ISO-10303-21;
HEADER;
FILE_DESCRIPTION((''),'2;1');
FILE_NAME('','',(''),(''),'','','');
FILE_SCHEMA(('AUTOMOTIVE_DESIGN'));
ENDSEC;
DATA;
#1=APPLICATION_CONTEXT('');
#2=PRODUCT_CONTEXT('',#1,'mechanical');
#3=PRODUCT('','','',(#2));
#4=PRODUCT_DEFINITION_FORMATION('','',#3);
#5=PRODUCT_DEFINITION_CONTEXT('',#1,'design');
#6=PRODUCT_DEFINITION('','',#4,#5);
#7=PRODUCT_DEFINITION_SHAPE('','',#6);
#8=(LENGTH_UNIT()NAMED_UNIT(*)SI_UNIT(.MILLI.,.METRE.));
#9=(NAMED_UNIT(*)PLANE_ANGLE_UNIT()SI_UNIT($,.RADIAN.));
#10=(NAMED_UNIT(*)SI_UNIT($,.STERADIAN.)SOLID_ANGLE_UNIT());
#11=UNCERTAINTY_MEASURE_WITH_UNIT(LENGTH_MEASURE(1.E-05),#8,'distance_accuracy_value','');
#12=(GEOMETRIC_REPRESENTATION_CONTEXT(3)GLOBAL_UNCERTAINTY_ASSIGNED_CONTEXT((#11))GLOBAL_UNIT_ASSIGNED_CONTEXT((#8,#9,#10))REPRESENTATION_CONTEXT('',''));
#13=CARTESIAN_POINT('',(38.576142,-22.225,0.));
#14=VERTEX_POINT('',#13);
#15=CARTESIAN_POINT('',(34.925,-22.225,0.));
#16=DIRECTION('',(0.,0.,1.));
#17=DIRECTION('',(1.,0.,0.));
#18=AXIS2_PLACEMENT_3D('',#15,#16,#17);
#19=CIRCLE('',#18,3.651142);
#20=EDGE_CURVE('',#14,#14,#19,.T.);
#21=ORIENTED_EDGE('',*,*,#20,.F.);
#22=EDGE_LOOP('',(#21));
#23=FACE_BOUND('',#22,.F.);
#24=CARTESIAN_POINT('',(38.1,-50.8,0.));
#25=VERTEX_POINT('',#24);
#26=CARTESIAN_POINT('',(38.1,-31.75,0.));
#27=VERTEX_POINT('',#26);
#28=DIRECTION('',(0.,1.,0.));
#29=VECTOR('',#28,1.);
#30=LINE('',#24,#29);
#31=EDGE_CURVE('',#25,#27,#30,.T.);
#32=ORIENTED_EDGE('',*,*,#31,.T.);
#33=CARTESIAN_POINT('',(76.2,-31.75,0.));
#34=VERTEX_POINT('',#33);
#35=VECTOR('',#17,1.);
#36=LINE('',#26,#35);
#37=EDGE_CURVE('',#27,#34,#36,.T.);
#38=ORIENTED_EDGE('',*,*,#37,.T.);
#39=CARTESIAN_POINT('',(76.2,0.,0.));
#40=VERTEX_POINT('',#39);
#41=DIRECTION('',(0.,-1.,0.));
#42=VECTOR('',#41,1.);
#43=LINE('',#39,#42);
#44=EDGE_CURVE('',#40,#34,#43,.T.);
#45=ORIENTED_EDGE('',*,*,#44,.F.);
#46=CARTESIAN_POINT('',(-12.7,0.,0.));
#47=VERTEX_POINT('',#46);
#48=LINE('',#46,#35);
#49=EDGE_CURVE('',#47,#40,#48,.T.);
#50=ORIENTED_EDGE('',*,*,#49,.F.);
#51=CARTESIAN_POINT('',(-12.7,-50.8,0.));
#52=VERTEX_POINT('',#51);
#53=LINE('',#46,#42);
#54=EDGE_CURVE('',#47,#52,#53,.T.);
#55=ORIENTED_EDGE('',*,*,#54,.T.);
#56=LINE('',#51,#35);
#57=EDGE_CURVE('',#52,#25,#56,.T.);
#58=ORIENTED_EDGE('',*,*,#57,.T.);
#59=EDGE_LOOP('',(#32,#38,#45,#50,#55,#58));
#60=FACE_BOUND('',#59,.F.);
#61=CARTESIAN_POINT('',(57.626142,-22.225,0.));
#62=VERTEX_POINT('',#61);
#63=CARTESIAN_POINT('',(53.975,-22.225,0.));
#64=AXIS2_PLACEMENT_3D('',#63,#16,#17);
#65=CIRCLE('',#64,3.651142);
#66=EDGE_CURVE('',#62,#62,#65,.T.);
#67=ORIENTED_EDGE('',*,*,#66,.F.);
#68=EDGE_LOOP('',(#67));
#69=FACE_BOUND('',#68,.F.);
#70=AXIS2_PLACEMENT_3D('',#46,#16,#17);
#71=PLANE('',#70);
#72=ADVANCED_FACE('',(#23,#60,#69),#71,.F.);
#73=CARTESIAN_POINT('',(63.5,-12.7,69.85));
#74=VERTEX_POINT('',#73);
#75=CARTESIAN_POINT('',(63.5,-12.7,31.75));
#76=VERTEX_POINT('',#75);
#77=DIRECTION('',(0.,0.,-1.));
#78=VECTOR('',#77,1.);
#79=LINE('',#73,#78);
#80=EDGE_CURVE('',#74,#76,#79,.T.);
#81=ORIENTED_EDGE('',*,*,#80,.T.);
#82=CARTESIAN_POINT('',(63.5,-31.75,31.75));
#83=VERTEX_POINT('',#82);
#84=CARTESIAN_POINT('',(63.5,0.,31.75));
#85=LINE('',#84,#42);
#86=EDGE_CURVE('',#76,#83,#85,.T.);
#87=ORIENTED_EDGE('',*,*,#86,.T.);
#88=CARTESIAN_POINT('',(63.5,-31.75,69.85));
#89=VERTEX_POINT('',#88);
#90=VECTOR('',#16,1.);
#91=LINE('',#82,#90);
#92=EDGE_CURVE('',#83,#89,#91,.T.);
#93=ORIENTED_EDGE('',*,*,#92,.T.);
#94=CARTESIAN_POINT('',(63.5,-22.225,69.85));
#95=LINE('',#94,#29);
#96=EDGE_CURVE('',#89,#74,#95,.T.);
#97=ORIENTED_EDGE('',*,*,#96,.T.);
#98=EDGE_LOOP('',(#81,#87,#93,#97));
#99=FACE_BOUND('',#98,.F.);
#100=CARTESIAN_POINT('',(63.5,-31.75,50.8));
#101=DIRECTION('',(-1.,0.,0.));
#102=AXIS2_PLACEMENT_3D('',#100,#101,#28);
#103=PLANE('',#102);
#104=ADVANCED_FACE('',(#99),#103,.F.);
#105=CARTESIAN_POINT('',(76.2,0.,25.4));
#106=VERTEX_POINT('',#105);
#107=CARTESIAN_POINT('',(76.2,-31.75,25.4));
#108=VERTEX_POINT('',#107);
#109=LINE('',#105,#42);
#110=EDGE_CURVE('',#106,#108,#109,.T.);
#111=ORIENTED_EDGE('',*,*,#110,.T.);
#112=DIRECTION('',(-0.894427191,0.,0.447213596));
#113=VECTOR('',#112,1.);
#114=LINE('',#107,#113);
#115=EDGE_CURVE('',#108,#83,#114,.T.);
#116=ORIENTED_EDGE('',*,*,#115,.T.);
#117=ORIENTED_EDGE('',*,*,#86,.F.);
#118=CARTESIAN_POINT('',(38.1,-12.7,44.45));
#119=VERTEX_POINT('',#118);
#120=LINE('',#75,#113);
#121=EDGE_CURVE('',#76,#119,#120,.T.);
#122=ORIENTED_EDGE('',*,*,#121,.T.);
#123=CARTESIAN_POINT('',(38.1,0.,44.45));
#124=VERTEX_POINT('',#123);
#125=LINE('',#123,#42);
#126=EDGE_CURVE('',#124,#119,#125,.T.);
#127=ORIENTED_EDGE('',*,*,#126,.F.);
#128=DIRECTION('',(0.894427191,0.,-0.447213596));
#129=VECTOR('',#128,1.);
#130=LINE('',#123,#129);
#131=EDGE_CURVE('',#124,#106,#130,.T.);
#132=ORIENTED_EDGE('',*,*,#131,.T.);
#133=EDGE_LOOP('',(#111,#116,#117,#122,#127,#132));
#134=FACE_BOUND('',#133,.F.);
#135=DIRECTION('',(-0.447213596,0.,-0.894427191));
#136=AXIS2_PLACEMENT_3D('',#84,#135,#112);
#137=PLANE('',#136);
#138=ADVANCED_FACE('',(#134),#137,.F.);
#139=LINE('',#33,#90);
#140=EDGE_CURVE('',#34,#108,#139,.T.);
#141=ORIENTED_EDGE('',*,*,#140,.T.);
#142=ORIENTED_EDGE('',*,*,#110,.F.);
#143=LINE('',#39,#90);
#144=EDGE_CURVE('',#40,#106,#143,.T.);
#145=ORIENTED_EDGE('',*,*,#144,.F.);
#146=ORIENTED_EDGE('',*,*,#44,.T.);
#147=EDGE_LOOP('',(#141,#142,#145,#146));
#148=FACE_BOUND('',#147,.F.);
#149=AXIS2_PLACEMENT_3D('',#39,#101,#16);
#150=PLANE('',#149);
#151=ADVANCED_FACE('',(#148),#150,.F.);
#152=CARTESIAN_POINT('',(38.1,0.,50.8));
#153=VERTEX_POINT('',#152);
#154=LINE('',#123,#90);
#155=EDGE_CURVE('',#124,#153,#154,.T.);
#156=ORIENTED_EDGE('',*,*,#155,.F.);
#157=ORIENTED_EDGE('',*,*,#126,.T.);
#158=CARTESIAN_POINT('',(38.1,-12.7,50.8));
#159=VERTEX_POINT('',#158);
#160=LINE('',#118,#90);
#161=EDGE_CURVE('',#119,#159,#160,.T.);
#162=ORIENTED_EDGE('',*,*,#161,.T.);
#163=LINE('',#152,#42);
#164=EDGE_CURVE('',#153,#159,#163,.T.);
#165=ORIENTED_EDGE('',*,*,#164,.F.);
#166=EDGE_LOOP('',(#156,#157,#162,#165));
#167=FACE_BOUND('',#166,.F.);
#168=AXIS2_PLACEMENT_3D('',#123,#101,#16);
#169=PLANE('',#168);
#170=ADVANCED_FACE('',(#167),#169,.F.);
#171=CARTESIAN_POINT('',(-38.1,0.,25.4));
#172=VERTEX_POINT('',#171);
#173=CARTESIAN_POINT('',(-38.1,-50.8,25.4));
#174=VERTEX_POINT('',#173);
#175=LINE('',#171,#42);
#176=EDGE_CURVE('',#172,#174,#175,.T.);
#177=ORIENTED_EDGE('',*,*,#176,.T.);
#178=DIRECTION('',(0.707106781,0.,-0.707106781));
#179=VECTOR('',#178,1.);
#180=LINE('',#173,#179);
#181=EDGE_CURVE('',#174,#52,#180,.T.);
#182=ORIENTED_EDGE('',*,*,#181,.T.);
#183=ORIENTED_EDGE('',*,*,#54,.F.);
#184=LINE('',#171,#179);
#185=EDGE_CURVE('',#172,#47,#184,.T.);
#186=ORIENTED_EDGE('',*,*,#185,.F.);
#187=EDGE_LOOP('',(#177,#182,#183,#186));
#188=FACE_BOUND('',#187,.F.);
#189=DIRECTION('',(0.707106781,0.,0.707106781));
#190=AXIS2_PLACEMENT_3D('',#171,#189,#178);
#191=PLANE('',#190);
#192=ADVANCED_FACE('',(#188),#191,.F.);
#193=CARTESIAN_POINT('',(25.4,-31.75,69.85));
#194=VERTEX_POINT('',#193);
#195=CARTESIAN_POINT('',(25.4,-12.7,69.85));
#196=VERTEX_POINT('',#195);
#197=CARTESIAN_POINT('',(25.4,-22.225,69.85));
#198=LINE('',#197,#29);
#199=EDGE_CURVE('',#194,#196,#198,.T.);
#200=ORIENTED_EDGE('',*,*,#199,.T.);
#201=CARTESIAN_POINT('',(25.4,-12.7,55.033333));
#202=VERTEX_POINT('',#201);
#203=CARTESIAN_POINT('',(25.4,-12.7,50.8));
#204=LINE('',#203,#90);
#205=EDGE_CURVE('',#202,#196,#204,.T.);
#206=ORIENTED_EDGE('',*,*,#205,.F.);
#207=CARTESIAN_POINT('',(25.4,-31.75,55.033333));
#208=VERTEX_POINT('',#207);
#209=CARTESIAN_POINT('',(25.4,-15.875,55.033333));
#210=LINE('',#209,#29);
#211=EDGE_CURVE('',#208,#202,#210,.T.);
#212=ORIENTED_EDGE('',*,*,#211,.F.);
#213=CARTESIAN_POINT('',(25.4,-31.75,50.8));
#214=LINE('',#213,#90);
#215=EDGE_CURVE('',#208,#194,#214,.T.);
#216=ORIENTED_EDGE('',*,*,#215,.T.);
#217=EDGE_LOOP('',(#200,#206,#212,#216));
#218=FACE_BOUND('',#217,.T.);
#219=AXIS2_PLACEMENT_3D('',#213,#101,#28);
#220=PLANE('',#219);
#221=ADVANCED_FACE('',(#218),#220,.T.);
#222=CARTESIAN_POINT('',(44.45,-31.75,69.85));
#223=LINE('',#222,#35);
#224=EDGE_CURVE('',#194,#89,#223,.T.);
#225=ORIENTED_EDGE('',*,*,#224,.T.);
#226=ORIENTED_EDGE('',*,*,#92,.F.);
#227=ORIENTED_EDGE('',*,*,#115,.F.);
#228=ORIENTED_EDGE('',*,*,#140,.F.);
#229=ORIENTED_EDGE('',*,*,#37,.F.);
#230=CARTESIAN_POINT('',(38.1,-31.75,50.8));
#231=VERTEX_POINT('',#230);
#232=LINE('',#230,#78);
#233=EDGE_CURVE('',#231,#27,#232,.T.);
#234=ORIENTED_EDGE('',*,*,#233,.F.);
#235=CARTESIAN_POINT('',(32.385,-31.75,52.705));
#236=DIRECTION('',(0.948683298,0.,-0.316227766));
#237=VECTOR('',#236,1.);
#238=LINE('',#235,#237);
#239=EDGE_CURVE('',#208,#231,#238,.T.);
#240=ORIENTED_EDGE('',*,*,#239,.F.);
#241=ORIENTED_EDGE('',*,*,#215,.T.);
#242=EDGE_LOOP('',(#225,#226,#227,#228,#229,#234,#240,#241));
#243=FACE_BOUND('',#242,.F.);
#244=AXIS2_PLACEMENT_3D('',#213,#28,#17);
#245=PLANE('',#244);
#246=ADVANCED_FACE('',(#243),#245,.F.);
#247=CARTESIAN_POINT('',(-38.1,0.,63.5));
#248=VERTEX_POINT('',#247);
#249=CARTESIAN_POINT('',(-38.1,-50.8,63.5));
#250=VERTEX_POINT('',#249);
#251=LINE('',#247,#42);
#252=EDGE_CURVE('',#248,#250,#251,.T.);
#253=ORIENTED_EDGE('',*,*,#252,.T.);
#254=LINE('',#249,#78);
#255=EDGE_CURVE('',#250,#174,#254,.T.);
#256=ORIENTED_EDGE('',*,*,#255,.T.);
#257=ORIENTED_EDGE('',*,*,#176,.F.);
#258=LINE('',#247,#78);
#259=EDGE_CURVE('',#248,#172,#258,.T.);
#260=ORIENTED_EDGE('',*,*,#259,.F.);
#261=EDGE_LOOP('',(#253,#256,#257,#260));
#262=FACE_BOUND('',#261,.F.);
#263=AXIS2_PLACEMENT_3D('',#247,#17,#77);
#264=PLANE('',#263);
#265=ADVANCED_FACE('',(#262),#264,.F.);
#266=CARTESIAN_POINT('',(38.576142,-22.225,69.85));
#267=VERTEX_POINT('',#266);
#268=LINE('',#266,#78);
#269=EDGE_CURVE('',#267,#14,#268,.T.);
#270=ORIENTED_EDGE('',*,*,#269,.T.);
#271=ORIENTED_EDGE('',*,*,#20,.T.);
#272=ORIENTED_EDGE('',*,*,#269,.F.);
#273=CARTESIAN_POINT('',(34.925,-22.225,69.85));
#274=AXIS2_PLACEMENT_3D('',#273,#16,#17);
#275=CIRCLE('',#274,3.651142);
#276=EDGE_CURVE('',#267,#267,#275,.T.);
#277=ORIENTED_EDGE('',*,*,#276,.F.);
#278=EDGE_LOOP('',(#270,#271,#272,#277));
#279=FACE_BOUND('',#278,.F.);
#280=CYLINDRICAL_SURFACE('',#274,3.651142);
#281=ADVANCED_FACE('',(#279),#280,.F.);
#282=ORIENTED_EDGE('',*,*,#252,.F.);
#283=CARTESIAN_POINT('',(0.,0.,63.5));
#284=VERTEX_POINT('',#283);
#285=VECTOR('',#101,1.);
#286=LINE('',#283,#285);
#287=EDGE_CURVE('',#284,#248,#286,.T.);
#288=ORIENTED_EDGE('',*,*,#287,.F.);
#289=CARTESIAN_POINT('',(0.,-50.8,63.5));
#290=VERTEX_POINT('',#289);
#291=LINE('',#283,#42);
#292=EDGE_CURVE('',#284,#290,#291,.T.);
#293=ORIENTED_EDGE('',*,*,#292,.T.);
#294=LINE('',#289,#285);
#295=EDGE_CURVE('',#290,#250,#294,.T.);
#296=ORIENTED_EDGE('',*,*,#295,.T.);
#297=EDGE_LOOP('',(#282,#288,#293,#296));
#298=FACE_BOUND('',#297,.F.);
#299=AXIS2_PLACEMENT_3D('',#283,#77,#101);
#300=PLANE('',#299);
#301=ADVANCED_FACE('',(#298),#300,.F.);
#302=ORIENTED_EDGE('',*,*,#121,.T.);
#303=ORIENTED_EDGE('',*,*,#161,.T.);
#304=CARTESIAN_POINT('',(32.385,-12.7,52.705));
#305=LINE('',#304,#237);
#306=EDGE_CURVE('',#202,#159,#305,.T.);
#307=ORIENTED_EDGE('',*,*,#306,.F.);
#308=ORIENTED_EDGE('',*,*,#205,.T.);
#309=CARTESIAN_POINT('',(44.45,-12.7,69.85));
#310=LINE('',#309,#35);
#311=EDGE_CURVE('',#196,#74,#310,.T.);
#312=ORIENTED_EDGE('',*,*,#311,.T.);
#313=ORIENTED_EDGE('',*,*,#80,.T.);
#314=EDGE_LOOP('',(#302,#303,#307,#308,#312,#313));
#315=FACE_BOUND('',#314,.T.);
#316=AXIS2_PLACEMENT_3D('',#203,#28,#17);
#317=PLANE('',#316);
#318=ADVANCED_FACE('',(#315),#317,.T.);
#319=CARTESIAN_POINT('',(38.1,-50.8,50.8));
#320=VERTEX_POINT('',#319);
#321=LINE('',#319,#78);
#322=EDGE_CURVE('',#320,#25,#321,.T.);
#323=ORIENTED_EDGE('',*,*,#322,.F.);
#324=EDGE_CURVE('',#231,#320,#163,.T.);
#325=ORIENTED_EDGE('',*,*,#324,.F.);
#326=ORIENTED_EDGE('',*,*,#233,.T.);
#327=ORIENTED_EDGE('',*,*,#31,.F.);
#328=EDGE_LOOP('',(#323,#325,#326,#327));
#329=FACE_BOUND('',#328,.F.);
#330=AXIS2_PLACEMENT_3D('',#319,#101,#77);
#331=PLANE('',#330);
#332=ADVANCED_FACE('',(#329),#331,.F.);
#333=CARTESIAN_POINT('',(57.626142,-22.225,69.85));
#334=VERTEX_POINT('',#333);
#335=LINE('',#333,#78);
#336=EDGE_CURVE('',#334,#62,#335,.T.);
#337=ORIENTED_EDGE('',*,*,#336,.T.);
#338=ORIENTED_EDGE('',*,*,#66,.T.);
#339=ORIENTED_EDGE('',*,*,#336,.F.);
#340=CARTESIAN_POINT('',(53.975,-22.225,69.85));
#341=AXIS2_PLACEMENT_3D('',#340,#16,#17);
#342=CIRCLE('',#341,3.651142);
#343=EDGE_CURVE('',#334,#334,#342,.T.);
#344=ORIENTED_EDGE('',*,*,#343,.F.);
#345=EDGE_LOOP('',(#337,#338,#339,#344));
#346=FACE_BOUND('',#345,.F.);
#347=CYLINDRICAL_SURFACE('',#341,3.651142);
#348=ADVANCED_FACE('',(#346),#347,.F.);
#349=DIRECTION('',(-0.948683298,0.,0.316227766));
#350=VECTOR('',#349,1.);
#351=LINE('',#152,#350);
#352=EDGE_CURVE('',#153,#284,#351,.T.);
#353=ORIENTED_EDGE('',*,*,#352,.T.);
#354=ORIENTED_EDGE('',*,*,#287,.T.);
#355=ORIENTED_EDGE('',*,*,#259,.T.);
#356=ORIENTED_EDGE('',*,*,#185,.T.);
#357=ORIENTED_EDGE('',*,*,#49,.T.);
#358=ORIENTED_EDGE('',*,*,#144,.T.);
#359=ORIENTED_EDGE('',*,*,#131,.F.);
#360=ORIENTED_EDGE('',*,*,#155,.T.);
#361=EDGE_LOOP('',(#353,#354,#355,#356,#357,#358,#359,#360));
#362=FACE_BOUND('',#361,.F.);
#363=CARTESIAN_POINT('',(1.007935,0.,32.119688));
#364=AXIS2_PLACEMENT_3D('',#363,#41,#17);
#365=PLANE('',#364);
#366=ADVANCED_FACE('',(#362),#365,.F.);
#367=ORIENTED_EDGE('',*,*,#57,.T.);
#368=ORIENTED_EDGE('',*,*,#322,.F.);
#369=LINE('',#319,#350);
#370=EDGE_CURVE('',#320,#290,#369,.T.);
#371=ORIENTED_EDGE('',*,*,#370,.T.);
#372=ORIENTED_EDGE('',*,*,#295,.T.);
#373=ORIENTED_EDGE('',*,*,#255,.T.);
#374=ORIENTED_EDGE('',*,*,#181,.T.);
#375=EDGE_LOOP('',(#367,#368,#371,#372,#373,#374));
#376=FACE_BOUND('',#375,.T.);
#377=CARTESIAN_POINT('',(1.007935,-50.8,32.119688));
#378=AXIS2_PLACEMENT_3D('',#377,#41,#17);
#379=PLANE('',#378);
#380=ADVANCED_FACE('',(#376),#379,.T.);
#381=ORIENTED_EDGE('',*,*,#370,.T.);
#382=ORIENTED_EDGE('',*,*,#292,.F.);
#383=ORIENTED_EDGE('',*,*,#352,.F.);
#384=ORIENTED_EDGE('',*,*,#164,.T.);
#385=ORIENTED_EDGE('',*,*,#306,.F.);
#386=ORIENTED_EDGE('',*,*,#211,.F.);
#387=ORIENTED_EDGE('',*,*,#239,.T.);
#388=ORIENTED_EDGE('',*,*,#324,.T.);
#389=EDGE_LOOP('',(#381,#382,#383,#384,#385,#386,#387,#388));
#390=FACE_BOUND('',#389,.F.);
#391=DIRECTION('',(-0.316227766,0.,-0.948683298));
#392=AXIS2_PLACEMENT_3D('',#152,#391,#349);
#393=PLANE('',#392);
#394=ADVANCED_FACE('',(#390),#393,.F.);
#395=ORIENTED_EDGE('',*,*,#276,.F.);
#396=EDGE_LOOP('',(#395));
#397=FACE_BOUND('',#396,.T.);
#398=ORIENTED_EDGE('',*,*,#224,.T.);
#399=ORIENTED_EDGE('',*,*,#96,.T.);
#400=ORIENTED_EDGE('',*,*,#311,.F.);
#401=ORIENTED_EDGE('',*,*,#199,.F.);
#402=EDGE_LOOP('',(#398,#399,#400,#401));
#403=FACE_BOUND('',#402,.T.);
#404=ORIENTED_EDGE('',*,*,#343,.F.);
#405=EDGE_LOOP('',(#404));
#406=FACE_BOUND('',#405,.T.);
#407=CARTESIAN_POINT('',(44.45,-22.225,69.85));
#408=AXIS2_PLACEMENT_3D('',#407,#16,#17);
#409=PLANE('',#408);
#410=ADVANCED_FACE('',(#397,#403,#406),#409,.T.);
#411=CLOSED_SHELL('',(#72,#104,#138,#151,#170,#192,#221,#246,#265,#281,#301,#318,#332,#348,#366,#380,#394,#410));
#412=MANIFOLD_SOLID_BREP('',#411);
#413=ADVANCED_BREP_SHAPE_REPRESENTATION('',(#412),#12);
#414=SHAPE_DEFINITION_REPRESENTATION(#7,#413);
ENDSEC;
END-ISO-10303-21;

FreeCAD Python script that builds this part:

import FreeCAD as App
import Part
import Sketcher

V = App.Vector
Q = App.Units.Quantity


def add_polygon(sketch, points):
    """Adds a closed chain of lines whose ends are joined by coincident constraints."""
    first, n = sketch.GeometryCount, len(points)
    for a, b in zip(points, points[1:] + points[:1]):
        sketch.addGeometry(Part.LineSegment(App.Vector(*a, 0), App.Vector(*b, 0)), False)
    for i in range(n):
        sketch.addConstraint(Sketcher.Constraint("Coincident", first + i, 2, first + (i + 1) % n, 1))

doc = App.newDocument("Part")
body = doc.addObject("PartDesign::Body", "Body")

# Sketch on XZ plane
sketch1 = body.newObject("Sketcher::SketchObject", "Sketch")
sketch1.AttachmentSupport = (doc.getObject("XZ_Plane"), [""])
sketch1.MapMode = "FlatFace"
add_polygon(sketch1, [(-13, 0), (76, 0), (76, 25), (64, 32), (64, 51), (38, 51), (0, 64), (-38, 64), (-38, 25)])  # lines 0-8
sketch1.addConstraint(Sketcher.Constraint("Horizontal", 0))
sketch1.addConstraint(Sketcher.Constraint("Vertical", 1))
sketch1.addConstraint(Sketcher.Constraint("Vertical", 3))
sketch1.addConstraint(Sketcher.Constraint("Horizontal", 4))
sketch1.addConstraint(Sketcher.Constraint("Horizontal", 6))
sketch1.addConstraint(Sketcher.Constraint("Vertical", 7))
sketch1.addConstraint(Sketcher.Constraint("PointOnObject", 0, 2, -1))
sketch1.addConstraint(Sketcher.Constraint("PointOnObject", 5, 2, -2))
sketch1.addConstraint(Sketcher.Constraint("Horizontal", 1, 2, 7, 2))
sketch1.addConstraint(Sketcher.Constraint("Equal", 4, 1))
sketch1.addConstraint(Sketcher.Constraint("Equal", 6, 7))
sketch1.addConstraint(Sketcher.Constraint("DistanceX", 4, 2, 4, 1, Q("1 in")))
sketch1.addConstraint(Sketcher.Constraint("DistanceX", 0, 1, 0, 2, Q("3.5 in")))
sketch1.addConstraint(Sketcher.Constraint("DistanceX", 6, 2, 6, 1, Q("1.5 in")))
sketch1.addConstraint(Sketcher.Constraint("DistanceX", -1, 1, 0, 2, Q("3 in")))
sketch1.addConstraint(Sketcher.Constraint("DistanceY", -1, 1, 3, 2, Q("2 in")))
sketch1.addConstraint(Sketcher.Constraint("DistanceX", 6, 2, 4, 2, Q("3 in")))
sketch1.addConstraint(Sketcher.Constraint("DistanceY", 3, 1, 3, 2, Q("0.75 in")))
pad1 = body.newObject("PartDesign::Pad", "Pad")
pad1.Profile = sketch1
pad1.Length = Q("2 in")

# Sketch on XZ plane
sketch2 = body.newObject("Sketcher::SketchObject", "Sketch001")
sketch2.AttachmentSupport = (doc.getObject("XZ_Plane"), [""])
sketch2.MapMode = "FlatFace"
sketch2.AttachmentOffset = App.Placement(V(0, 0, 2 * 25.4), App.Rotation())
add_polygon(sketch2, [(64, 51), (38, 51), (38, 0), (76, 0), (76, 25), (64, 32)])  # lines 0-5
sketch2.addConstraint(Sketcher.Constraint("Horizontal", 0))
sketch2.addConstraint(Sketcher.Constraint("Vertical", 1))
sketch2.addConstraint(Sketcher.Constraint("Horizontal", 2))
sketch2.addConstraint(Sketcher.Constraint("Vertical", 3))
sketch2.addConstraint(Sketcher.Constraint("Vertical", 5))
sketch2.addConstraint(Sketcher.Constraint("PointOnObject", 1, 2, -1))
sketch2.addConstraint(Sketcher.Constraint("Equal", 0, 3))
sketch2.addConstraint(Sketcher.Constraint("DistanceX", 0, 2, 0, 1, Q("1 in")))
sketch2.addConstraint(Sketcher.Constraint("DistanceY", 1, 2, 1, 1, Q("2 in")))
sketch2.addConstraint(Sketcher.Constraint("DistanceX", 2, 1, 2, 2, Q("1.5 in")))
sketch2.addConstraint(Sketcher.Constraint("DistanceX", -1, 1, 2, 2, Q("3 in")))
sketch2.addConstraint(Sketcher.Constraint("DistanceY", 5, 1, 5, 2, Q("0.75 in")))
pocket1 = body.newObject("PartDesign::Pocket", "Pocket")
pocket1.Profile = sketch2
pocket1.Length = Q("0.75 in")

# Sketch on XZ plane
sketch3 = body.newObject("Sketcher::SketchObject", "Sketch002")
sketch3.AttachmentSupport = (doc.getObject("XZ_Plane"), [""])
sketch3.MapMode = "FlatFace"
add_polygon(sketch3, [(64, 51), (64, 32), (38, 44), (38, 51)])  # lines 0-3
sketch3.addConstraint(Sketcher.Constraint("Vertical", 0))
sketch3.addConstraint(Sketcher.Constraint("Vertical", 2))
sketch3.addConstraint(Sketcher.Constraint("Horizontal", 3))
sketch3.addConstraint(Sketcher.Constraint("DistanceX", 3, 1, 3, 2, Q("1 in")))
sketch3.addConstraint(Sketcher.Constraint("DistanceY", -1, 1, 2, 2, Q("2 in")))
sketch3.addConstraint(Sketcher.Constraint("DistanceY", 0, 2, 0, 1, Q("0.75 in")))
sketch3.addConstraint(Sketcher.Constraint("DistanceY", 2, 1, 2, 2, Q("0.25 in")))
sketch3.addConstraint(Sketcher.Constraint("DistanceX", -1, 1, 0, 2, Q("2.5 in")))
pocket2 = body.newObject("PartDesign::Pocket", "Pocket001")
pocket2.Profile = sketch3
pocket2.Length = Q("0.5 in")
pocket2.Reversed = True

# Sketch on XY plane
sketch4 = body.newObject("Sketcher::SketchObject", "Sketch003")
sketch4.AttachmentSupport = (doc.getObject("XY_Plane"), [""])
sketch4.MapMode = "FlatFace"
sketch4.AttachmentOffset = App.Placement(V(0, 0, 2 * 25.4), App.Rotation())
add_polygon(sketch4, [(25, -13), (25, -32), (64, -32), (64, -13)])  # lines 0-3
sketch4.addConstraint(Sketcher.Constraint("Vertical", 0))
sketch4.addConstraint(Sketcher.Constraint("Horizontal", 1))
sketch4.addConstraint(Sketcher.Constraint("Vertical", 2))
sketch4.addConstraint(Sketcher.Constraint("Horizontal", 3))
sketch4.addConstraint(Sketcher.Constraint("DistanceX", 1, 1, 1, 2, Q("1.5 in")))
sketch4.addConstraint(Sketcher.Constraint("DistanceX", -1, 1, 0, 2, Q("1 in")))
sketch4.addConstraint(Sketcher.Constraint("DistanceY", 0, 2, 0, 1, Q("0.75 in")))
sketch4.addConstraint(Sketcher.Constraint("DistanceY", 2, 2, -1, 1, Q("0.5 in")))
pad2 = body.newObject("PartDesign::Pad", "Pad001")
pad2.Profile = sketch4
pad2.Length = Q("0.75 in")

# Sketch on XY plane
sketch5 = body.newObject("Sketcher::SketchObject", "Sketch004")
sketch5.AttachmentSupport = (doc.getObject("XY_Plane"), [""])
sketch5.MapMode = "FlatFace"
sketch5.AttachmentOffset = App.Placement(V(0, 0, 2.75 * 25.4), App.Rotation())
sketch5.addGeometry(Part.Circle(V(34.9, -22.2, 0), V(0, 0, 1), 3.7), False)
sketch5.addGeometry(Part.Circle(V(54, -22.2, 0), V(0, 0, 1), 3.7), False)
sketch5.addConstraint(Sketcher.Constraint("Equal", 0, 1))
sketch5.addConstraint(Sketcher.Constraint("Horizontal", 0, 3, 1, 3))
sketch5.addConstraint(Sketcher.Constraint("DistanceX", 0, 3, 1, 3, Q("0.75 in")))
sketch5.addConstraint(Sketcher.Constraint("DistanceX", -1, 1, 0, 3, Q("1.375 in")))
sketch5.addConstraint(Sketcher.Constraint("DistanceY", 0, 3, -1, 1, Q("0.875 in")))
sketch5.addConstraint(Sketcher.Constraint("Diameter", 0, Q("7.302284 mm")))
pocket3 = body.newObject("PartDesign::Pocket", "Pocket002")
pocket3.Profile = sketch5
pocket3.Type = "ThroughAll"

doc.recompute()
